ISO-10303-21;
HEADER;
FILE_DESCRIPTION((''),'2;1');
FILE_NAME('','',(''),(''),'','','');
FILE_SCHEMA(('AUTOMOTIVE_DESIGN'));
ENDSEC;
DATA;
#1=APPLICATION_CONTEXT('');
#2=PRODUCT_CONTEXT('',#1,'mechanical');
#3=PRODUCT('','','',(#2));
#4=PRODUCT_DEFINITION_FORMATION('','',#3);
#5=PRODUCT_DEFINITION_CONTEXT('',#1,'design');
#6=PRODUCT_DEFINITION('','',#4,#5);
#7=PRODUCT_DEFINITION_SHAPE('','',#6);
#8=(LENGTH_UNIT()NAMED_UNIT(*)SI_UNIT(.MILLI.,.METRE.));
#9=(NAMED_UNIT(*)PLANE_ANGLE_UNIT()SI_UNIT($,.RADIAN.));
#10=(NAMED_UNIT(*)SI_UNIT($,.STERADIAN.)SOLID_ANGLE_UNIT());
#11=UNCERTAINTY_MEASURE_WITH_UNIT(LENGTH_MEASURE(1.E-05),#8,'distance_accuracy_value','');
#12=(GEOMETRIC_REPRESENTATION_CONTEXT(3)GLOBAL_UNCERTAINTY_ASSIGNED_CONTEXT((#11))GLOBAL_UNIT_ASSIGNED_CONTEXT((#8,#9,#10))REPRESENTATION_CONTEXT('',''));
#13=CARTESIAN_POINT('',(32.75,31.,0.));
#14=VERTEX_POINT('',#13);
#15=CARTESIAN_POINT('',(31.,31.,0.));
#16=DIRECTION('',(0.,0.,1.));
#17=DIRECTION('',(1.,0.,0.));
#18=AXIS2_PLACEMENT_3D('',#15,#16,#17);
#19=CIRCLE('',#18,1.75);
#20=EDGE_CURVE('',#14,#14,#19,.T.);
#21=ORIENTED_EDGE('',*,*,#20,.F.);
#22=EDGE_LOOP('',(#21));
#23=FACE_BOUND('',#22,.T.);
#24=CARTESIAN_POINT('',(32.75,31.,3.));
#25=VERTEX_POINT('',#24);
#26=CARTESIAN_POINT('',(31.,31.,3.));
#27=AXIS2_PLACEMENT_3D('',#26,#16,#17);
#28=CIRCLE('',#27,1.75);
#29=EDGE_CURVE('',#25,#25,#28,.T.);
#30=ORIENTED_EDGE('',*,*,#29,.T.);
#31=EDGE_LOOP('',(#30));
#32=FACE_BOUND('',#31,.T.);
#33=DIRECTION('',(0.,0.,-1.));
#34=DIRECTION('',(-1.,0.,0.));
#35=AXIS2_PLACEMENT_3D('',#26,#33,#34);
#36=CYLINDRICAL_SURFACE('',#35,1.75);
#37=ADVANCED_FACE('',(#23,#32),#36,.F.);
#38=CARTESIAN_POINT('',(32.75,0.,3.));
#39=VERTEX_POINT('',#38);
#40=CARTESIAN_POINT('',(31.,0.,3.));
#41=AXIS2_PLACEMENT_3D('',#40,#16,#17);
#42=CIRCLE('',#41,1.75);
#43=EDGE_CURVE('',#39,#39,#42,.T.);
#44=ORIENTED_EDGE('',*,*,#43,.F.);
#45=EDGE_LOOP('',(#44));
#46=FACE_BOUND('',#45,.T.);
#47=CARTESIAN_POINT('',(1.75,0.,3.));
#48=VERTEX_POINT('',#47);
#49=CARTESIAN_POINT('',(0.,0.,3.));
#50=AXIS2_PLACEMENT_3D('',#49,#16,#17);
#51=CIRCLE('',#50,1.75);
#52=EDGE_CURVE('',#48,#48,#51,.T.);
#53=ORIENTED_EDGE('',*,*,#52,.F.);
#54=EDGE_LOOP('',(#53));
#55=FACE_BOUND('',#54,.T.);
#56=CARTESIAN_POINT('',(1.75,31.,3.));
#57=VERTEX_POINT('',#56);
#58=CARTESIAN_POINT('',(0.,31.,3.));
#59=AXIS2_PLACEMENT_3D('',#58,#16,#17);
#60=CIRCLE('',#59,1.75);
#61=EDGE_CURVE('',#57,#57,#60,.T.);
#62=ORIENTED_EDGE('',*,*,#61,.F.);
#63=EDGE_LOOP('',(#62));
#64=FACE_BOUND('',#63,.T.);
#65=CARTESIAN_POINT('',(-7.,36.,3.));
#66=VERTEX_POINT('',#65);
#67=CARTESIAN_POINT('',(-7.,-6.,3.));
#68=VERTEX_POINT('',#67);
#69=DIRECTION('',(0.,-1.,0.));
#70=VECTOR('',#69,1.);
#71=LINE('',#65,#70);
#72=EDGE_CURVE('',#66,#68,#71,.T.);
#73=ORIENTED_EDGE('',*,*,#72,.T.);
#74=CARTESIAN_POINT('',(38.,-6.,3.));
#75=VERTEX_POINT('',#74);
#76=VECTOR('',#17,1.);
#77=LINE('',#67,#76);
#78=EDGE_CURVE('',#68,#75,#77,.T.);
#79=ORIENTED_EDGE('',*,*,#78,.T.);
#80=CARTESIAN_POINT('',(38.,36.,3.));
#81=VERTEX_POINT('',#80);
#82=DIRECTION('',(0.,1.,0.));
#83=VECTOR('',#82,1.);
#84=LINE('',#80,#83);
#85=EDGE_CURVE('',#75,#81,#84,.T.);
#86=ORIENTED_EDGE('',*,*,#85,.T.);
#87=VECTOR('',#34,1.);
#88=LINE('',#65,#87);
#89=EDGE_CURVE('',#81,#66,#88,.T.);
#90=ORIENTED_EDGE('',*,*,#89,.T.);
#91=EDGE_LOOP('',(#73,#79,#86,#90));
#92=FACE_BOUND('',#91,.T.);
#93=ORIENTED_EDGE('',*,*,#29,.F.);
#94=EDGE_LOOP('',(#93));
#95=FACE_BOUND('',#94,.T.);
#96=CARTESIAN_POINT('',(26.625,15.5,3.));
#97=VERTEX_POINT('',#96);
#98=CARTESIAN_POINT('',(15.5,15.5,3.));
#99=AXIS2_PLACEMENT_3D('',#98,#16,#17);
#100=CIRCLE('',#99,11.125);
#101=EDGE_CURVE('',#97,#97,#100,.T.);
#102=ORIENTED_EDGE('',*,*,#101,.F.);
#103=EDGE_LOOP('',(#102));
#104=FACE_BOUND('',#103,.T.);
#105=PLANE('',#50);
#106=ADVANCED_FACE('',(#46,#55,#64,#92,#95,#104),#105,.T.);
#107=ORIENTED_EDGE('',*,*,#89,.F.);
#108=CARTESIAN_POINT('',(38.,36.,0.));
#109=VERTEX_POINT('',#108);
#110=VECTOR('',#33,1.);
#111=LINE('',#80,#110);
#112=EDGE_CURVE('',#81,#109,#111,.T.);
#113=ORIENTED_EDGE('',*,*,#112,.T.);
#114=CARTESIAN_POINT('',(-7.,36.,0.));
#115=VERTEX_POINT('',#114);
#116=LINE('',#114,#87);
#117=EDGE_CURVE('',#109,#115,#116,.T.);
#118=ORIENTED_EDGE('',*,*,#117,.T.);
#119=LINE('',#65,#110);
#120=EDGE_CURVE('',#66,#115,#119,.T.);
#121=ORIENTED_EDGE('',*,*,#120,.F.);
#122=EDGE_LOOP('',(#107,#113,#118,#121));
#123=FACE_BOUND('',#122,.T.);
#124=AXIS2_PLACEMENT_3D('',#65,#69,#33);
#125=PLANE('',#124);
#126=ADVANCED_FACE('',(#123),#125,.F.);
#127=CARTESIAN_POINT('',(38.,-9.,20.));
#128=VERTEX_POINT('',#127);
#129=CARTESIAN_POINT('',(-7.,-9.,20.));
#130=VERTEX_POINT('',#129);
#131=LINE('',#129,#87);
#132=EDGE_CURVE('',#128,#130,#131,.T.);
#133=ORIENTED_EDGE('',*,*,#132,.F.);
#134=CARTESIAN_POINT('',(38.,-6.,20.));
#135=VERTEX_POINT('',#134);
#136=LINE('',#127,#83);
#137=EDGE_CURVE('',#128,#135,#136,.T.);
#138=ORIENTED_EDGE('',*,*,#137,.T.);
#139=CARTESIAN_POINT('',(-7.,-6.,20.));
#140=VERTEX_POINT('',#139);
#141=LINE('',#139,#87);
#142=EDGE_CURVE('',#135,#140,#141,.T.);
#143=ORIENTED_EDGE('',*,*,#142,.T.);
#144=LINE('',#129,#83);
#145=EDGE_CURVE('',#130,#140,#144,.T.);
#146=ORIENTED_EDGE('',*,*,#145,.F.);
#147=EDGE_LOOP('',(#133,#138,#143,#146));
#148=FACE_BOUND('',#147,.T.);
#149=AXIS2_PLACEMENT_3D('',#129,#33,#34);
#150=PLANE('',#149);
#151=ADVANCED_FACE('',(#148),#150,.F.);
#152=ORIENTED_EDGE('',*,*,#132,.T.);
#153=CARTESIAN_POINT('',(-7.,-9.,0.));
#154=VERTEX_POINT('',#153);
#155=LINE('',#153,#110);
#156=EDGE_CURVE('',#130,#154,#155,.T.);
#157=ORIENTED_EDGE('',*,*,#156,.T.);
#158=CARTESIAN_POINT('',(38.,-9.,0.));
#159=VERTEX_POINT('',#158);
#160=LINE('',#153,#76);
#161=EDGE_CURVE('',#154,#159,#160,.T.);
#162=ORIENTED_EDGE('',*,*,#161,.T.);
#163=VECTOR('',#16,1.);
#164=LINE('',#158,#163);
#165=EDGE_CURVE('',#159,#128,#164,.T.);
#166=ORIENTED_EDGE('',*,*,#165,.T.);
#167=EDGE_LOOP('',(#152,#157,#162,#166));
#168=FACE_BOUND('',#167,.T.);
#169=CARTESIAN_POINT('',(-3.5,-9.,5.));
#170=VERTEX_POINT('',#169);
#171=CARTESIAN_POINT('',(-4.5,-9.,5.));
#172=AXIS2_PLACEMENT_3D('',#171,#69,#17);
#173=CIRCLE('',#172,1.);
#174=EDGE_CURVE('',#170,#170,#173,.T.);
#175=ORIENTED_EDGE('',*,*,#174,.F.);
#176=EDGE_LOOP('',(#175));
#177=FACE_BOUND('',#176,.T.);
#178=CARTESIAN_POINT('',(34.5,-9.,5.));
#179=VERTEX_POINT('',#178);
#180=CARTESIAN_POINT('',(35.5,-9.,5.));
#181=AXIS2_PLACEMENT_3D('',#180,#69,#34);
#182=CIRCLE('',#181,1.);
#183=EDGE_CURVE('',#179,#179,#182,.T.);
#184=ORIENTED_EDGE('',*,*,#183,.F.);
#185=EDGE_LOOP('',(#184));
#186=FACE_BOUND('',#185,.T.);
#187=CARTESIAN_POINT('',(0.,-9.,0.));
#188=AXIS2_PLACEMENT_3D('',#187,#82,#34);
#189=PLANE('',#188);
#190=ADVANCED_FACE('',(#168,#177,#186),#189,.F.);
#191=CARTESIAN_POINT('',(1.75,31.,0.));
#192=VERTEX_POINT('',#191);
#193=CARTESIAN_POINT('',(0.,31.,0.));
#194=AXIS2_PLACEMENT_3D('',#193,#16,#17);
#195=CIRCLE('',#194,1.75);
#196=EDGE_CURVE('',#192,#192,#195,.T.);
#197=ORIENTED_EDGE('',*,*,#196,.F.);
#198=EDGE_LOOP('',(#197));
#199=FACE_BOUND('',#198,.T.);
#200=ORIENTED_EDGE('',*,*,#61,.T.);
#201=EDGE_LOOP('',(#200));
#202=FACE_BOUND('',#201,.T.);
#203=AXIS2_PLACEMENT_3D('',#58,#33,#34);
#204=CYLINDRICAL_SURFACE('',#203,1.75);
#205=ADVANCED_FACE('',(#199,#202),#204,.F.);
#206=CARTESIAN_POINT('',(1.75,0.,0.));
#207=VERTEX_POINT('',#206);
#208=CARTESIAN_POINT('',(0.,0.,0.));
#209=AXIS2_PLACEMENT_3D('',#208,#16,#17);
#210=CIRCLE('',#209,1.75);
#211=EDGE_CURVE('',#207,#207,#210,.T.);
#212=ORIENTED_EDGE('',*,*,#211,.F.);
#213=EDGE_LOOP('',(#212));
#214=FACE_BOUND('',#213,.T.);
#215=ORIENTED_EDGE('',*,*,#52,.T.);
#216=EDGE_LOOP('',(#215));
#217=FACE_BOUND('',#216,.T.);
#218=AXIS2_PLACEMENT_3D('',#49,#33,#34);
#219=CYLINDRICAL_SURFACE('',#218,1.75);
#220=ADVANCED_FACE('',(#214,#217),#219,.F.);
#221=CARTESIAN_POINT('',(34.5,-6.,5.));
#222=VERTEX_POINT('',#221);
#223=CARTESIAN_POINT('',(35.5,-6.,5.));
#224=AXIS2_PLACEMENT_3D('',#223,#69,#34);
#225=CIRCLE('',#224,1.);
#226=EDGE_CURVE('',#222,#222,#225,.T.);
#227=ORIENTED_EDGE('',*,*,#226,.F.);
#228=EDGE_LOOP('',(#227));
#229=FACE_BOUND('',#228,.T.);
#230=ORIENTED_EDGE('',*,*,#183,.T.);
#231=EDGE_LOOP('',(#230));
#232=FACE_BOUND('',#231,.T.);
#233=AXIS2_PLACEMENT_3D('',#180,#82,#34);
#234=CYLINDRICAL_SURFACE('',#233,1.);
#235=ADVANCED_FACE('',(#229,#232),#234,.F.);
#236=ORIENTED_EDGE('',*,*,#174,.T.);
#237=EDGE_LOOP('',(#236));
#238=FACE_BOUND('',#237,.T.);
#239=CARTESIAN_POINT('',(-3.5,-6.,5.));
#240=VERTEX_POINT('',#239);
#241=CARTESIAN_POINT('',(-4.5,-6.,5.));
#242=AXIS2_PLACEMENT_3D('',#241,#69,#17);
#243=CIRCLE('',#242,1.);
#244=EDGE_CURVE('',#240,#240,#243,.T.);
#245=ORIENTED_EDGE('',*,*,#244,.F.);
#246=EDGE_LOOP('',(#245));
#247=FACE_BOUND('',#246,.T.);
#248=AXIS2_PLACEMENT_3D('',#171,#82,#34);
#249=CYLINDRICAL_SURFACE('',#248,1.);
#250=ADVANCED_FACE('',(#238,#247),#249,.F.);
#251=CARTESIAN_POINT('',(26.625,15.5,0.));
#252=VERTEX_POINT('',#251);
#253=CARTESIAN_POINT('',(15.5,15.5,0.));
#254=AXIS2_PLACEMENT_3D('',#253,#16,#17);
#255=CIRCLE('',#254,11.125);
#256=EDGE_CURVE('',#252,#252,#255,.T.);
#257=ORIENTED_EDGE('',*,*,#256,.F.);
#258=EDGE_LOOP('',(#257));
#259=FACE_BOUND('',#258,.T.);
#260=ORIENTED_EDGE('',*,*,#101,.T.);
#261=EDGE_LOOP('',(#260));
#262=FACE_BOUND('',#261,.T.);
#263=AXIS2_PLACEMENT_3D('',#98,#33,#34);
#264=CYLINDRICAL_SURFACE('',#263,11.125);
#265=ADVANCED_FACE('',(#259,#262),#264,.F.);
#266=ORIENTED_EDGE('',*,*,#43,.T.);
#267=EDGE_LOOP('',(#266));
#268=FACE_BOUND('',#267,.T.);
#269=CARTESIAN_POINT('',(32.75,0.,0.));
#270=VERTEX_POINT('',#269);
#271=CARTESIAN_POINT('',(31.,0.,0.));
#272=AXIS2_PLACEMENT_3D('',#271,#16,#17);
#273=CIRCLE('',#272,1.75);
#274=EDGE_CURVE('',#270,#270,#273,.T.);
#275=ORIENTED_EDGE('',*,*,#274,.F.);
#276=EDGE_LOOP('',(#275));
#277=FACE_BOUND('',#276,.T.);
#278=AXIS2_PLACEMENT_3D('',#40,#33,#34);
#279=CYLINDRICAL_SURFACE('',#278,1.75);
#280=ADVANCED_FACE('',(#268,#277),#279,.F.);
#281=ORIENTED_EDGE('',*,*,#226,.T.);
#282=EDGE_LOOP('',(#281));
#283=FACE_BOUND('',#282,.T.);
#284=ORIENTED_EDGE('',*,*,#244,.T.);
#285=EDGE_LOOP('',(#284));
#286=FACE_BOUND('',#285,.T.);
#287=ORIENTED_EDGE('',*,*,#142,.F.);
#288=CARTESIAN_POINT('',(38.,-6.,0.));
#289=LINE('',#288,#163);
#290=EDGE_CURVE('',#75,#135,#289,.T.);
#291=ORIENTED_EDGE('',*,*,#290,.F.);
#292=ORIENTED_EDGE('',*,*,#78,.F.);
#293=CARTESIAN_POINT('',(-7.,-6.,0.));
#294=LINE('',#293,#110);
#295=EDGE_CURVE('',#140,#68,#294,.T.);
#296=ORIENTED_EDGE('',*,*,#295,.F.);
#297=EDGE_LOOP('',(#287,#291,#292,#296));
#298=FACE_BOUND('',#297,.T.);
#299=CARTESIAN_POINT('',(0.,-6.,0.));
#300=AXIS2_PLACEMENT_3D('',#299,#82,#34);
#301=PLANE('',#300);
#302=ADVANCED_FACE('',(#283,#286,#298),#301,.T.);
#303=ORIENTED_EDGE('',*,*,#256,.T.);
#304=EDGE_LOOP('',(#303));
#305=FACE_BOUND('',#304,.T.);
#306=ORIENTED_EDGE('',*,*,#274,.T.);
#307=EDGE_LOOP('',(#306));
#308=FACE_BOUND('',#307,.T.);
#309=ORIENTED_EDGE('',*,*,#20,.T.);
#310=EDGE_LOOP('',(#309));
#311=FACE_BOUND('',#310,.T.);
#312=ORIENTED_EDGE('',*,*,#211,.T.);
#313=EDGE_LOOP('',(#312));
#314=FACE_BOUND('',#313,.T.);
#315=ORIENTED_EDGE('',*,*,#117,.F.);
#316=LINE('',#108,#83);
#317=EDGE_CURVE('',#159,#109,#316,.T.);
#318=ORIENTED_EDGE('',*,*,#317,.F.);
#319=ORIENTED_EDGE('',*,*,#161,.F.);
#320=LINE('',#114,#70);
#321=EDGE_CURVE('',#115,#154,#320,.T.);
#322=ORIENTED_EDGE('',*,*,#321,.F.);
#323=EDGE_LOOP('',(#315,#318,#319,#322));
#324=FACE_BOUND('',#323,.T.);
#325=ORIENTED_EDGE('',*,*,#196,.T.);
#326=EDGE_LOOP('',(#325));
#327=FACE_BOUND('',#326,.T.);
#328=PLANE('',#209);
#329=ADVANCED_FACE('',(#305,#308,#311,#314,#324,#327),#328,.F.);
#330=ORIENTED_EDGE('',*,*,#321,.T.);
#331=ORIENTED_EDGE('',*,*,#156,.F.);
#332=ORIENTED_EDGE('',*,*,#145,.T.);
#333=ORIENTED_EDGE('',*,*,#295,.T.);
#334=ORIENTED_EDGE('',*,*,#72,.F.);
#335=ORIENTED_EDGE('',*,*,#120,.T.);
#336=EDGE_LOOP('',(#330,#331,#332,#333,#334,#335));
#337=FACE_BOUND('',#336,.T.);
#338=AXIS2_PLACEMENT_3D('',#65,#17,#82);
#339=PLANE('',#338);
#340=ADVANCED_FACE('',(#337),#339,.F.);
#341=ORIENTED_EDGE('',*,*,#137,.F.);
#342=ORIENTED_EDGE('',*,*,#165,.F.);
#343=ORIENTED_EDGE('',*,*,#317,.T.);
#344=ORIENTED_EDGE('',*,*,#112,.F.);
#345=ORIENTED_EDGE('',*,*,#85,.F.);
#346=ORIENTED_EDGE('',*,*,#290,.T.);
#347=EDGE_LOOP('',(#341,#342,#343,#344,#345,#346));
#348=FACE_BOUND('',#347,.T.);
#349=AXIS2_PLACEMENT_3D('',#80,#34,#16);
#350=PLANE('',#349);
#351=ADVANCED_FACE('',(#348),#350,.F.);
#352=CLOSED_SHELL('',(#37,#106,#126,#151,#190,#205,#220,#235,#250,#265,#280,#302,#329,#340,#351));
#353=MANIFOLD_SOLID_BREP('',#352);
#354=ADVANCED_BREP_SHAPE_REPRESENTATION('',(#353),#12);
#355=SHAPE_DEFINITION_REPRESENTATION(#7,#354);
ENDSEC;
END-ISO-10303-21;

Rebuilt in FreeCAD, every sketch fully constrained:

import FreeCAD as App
import Part
import Sketcher
from FreeCAD import Vector
Q = App.Units.Quantity


def add_polygon(sketch, points):
    """Adds a closed chain of lines whose ends are joined by coincident constraints."""
    first, n = sketch.GeometryCount, len(points)
    for a, b in zip(points, points[1:] + points[:1]):
        sketch.addGeometry(Part.LineSegment(App.Vector(*a, 0), App.Vector(*b, 0)), False)
    for i in range(n):
        sketch.addConstraint(Sketcher.Constraint("Coincident", first + i, 2, first + (i + 1) % n, 1))

doc = App.newDocument("Part")
body = doc.addObject("PartDesign::Body", "Body")

# Sketch on XY plane
sketch1 = body.newObject("Sketcher::SketchObject", "Sketch")
sketch1.AttachmentSupport = (doc.getObject("XY_Plane"), [""])
sketch1.MapMode = "FlatFace"
add_polygon(sketch1, [(-7, 36), (-7, -6), (38, -6), (38, 36)])  # lines 0-3
sketch1.addGeometry(Part.Circle(Vector(0, 0, 0), Vector(0, 0, 1), 1.8), False)  # 4
sketch1.addGeometry(Part.Circle(Vector(31, 0, 0), Vector(0, 0, 1), 1.8), False)  # 5
sketch1.addGeometry(Part.Circle(Vector(0, 31, 0), Vector(0, 0, 1), 1.8), False)  # 6
sketch1.addGeometry(Part.Circle(Vector(15.5, 15.5, 0), Vector(0, 0, 1), 11.1), False)  # 7
sketch1.addGeometry(Part.Circle(Vector(31, 31, 0), Vector(0, 0, 1), 1.8), False)  # 8
sketch1.addConstraint(Sketcher.Constraint("Vertical", 0))
sketch1.addConstraint(Sketcher.Constraint("Horizontal", 1))
sketch1.addConstraint(Sketcher.Constraint("Vertical", 2))
sketch1.addConstraint(Sketcher.Constraint("Horizontal", 3))
sketch1.addConstraint(Sketcher.Constraint("Coincident", 4, 3, -1, 1))
sketch1.addConstraint(Sketcher.Constraint("Equal", 4, 5))
sketch1.addConstraint(Sketcher.Constraint("Equal", 5, 6))
sketch1.addConstraint(Sketcher.Constraint("Equal", 6, 8))
sketch1.addConstraint(Sketcher.Constraint("PointOnObject", 5, 3, -1))
sketch1.addConstraint(Sketcher.Constraint("PointOnObject", 6, 3, -2))
sketch1.addConstraint(Sketcher.Constraint("Horizontal", 6, 3, 8, 3))
sketch1.addConstraint(Sketcher.Constraint("Vertical", 5, 3, 8, 3))
sketch1.addConstraint(Sketcher.Constraint("Diameter", 4, Q("3.5 mm")))
sketch1.addConstraint(Sketcher.Constraint("Diameter", 7, Q("22.25 mm")))
sketch1.addConstraint(Sketcher.Constraint("DistanceX", 1, 1, 1, 2, Q("45 mm")))
sketch1.addConstraint(Sketcher.Constraint("DistanceY", 0, 2, 0, 1, Q("42 mm")))
sketch1.addConstraint(Sketcher.Constraint("DistanceX", -1, 1, 5, 3, Q("31 mm")))
sketch1.addConstraint(Sketcher.Constraint("DistanceY", -1, 1, 6, 3, Q("31 mm")))
sketch1.addConstraint(Sketcher.Constraint("DistanceX", 0, 2, -1, 1, Q("7 mm")))
sketch1.addConstraint(Sketcher.Constraint("DistanceY", 0, 2, -1, 1, Q("6 mm")))
sketch1.addConstraint(Sketcher.Constraint("DistanceX", -1, 1, 7, 3, Q("15.5 mm")))
sketch1.addConstraint(Sketcher.Constraint("DistanceY", -1, 1, 7, 3, Q("15.5 mm")))
pad1 = body.newObject("PartDesign::Pad", "Pad")
pad1.Profile = sketch1
pad1.Length = 3

# Sketch on XZ plane
sketch2 = body.newObject("Sketcher::SketchObject", "Sketch001")
sketch2.AttachmentSupport = (doc.getObject("XZ_Plane"), [""])
sketch2.MapMode = "FlatFace"
sketch2.AttachmentOffset = App.Placement(Vector(0, 0, 6), App.Rotation())
add_polygon(sketch2, [(-7, 20), (-7, 0), (38, 0), (38, 20)])  # lines 0-3
sketch2.addGeometry(Part.Circle(Vector(-4.5, 5, 0), Vector(0, 0, 1), 1), False)  # 4
sketch2.addGeometry(Part.Circle(Vector(35.5, 5, 0), Vector(0, 0, 1), 1), False)  # 5
sketch2.addConstraint(Sketcher.Constraint("Vertical", 0))
sketch2.addConstraint(Sketcher.Constraint("Horizontal", 1))
sketch2.addConstraint(Sketcher.Constraint("Vertical", 2))
sketch2.addConstraint(Sketcher.Constraint("Horizontal", 3))
sketch2.addConstraint(Sketcher.Constraint("Equal", 4, 5))
sketch2.addConstraint(Sketcher.Constraint("PointOnObject", 0, 2, -1))
sketch2.addConstraint(Sketcher.Constraint("Horizontal", 4, 3, 5, 3))
sketch2.addConstraint(Sketcher.Constraint("Diameter", 4, Q("2 mm")))
sketch2.addConstraint(Sketcher.Constraint("DistanceX", 1, 1, 1, 2, Q("45 mm")))
sketch2.addConstraint(Sketcher.Constraint("DistanceY", 0, 2, 0, 1, Q("20 mm")))
sketch2.addConstraint(Sketcher.Constraint("DistanceY", -1, 1, 4, 3, Q("5 mm")))
sketch2.addConstraint(Sketcher.Constraint("DistanceX", 0, 2, -1, 1, Q("7 mm")))
sketch2.addConstraint(Sketcher.Constraint("DistanceX", 4, 3, 5, 3, Q("40 mm")))
sketch2.addConstraint(Sketcher.Constraint("DistanceX", 4, 3, -1, 1, Q("4.5 mm")))
pad2 = body.newObject("PartDesign::Pad", "Pad001")
pad2.Profile = sketch2
pad2.Length = 3

doc.recompute()
